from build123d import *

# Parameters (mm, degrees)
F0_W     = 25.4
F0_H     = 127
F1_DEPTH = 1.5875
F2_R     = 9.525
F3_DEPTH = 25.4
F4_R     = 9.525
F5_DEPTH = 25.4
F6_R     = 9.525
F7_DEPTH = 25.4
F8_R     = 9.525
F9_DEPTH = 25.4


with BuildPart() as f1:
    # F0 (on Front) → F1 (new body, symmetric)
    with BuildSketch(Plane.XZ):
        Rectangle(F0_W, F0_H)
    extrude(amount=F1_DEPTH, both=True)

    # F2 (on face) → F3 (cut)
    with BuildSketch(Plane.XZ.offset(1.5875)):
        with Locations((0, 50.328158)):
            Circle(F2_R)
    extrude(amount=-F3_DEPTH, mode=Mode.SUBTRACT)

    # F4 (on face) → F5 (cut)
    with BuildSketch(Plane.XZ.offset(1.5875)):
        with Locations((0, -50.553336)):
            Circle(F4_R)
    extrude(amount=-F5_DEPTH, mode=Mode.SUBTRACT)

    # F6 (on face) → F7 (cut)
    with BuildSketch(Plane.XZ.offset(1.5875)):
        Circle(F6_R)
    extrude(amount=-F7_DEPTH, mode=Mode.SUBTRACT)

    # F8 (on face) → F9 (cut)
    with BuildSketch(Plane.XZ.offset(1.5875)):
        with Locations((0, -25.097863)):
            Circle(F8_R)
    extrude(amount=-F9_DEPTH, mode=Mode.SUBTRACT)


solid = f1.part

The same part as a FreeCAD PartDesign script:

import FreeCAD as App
import Part
import Sketcher

V = App.Vector
Q = App.Units.Quantity


def add_polygon(sketch, points):
    """Adds a closed chain of lines whose ends are joined by coincident constraints."""
    first, n = sketch.GeometryCount, len(points)
    for a, b in zip(points, points[1:] + points[:1]):
        sketch.addGeometry(Part.LineSegment(App.Vector(*a, 0), App.Vector(*b, 0)), False)
    for i in range(n):
        sketch.addConstraint(Sketcher.Constraint("Coincident", first + i, 2, first + (i + 1) % n, 1))

doc = App.newDocument("Part")
body = doc.addObject("PartDesign::Body", "Body")

# Sketch on XZ plane
sketch1 = body.newObject("Sketcher::SketchObject", "Sketch")
sketch1.AttachmentSupport = (doc.getObject("XZ_Plane"), [""])
sketch1.MapMode = "FlatFace"
add_polygon(sketch1, [(-12.7, 63.5), (-12.7, -63.5), (12.7, -63.5), (12.7, 63.5)])  # lines 0-3
sketch1.addConstraint(Sketcher.Constraint("Vertical", 0))
sketch1.addConstraint(Sketcher.Constraint("Horizontal", 1))
sketch1.addConstraint(Sketcher.Constraint("Vertical", 2))
sketch1.addConstraint(Sketcher.Constraint("Horizontal", 3))
sketch1.addConstraint(Sketcher.Constraint("Symmetric", 0, 2, 2, 2, -1, 1))
sketch1.addConstraint(Sketcher.Constraint("DistanceX", 1, 1, 1, 2, Q("1 in")))
sketch1.addConstraint(Sketcher.Constraint("DistanceY", 0, 2, 0, 1, Q("5 in")))
pad1 = body.newObject("PartDesign::Pad", "Pad")
pad1.Profile = sketch1
pad1.Length = Q("0.125 in")
pad1.Midplane = True

# Sketch on XZ plane
sketch2 = body.newObject("Sketcher::SketchObject", "Sketch001")
sketch2.AttachmentSupport = (doc.getObject("XZ_Plane"), [""])
sketch2.MapMode = "FlatFace"
sketch2.AttachmentOffset = App.Placement(V(0, 0, 0.0625 * 25.4), App.Rotation())
sketch2.addGeometry(Part.Circle(V(0, 50.328158, 0), V(0, 0, 1), 9.525), False)
sketch2.addConstraint(Sketcher.Constraint("PointOnObject", 0, 3, -2))
sketch2.addConstraint(Sketcher.Constraint("Diameter", 0, Q("0.75 in")))
sketch2.addConstraint(Sketcher.Constraint("DistanceY", -1, 1, 0, 3, Q("50.328158 mm")))
pocket1 = body.newObject("PartDesign::Pocket", "Pocket")
pocket1.Profile = sketch2
pocket1.Length = Q("1 in")

# Sketch on XZ plane
sketch3 = body.newObject("Sketcher::SketchObject", "Sketch002")
sketch3.AttachmentSupport = (doc.getObject("XZ_Plane"), [""])
sketch3.MapMode = "FlatFace"
sketch3.AttachmentOffset = App.Placement(V(0, 0, 0.0625 * 25.4), App.Rotation())
sketch3.addGeometry(Part.Circle(V(0, -50.553336, 0), V(0, 0, 1), 9.525), False)
sketch3.addConstraint(Sketcher.Constraint("PointOnObject", 0, 3, -2))
sketch3.addConstraint(Sketcher.Constraint("Diameter", 0, Q("0.75 in")))
sketch3.addConstraint(Sketcher.Constraint("DistanceY", 0, 3, -1, 1, Q("50.553336 mm")))
pocket2 = body.newObject("PartDesign::Pocket", "Pocket001")
pocket2.Profile = sketch3
pocket2.Length = Q("1 in")

# Sketch on XZ plane
sketch4 = body.newObject("Sketcher::SketchObject", "Sketch003")
sketch4.AttachmentSupport = (doc.getObject("XZ_Plane"), [""])
sketch4.MapMode = "FlatFace"
sketch4.AttachmentOffset = App.Placement(V(0, 0, 0.0625 * 25.4), App.Rotation())
sketch4.addGeometry(Part.Circle(V(0, 0, 0), V(0, 0, 1), 9.525), False)
sketch4.addConstraint(Sketcher.Constraint("Coincident", 0, 3, -1, 1))
sketch4.addConstraint(Sketcher.Constraint("Diameter", 0, Q("0.75 in")))
pocket3 = body.newObject("PartDesign::Pocket", "Pocket002")
pocket3.Profile = sketch4
pocket3.Length = Q("1 in")

# Sketch on XZ plane
sketch5 = body.newObject("Sketcher::SketchObject", "Sketch004")
sketch5.AttachmentSupport = (doc.getObject("XZ_Plane"), [""])
sketch5.MapMode = "FlatFace"
sketch5.AttachmentOffset = App.Placement(V(0, 0, 0.0625 * 25.4), App.Rotation())
sketch5.addGeometry(Part.Circle(V(0, -25.097863, 0), V(0, 0, 1), 9.525), False)
sketch5.addConstraint(Sketcher.Constraint("PointOnObject", 0, 3, -2))
sketch5.addConstraint(Sketcher.Constraint("Diameter", 0, Q("0.75 in")))
sketch5.addConstraint(Sketcher.Constraint("DistanceY", 0, 3, -1, 1, Q("25.097863 mm")))
pocket4 = body.newObject("PartDesign::Pocket", "Pocket003")
pocket4.Profile = sketch5
pocket4.Length = Q("1 in")

doc.recompute()
